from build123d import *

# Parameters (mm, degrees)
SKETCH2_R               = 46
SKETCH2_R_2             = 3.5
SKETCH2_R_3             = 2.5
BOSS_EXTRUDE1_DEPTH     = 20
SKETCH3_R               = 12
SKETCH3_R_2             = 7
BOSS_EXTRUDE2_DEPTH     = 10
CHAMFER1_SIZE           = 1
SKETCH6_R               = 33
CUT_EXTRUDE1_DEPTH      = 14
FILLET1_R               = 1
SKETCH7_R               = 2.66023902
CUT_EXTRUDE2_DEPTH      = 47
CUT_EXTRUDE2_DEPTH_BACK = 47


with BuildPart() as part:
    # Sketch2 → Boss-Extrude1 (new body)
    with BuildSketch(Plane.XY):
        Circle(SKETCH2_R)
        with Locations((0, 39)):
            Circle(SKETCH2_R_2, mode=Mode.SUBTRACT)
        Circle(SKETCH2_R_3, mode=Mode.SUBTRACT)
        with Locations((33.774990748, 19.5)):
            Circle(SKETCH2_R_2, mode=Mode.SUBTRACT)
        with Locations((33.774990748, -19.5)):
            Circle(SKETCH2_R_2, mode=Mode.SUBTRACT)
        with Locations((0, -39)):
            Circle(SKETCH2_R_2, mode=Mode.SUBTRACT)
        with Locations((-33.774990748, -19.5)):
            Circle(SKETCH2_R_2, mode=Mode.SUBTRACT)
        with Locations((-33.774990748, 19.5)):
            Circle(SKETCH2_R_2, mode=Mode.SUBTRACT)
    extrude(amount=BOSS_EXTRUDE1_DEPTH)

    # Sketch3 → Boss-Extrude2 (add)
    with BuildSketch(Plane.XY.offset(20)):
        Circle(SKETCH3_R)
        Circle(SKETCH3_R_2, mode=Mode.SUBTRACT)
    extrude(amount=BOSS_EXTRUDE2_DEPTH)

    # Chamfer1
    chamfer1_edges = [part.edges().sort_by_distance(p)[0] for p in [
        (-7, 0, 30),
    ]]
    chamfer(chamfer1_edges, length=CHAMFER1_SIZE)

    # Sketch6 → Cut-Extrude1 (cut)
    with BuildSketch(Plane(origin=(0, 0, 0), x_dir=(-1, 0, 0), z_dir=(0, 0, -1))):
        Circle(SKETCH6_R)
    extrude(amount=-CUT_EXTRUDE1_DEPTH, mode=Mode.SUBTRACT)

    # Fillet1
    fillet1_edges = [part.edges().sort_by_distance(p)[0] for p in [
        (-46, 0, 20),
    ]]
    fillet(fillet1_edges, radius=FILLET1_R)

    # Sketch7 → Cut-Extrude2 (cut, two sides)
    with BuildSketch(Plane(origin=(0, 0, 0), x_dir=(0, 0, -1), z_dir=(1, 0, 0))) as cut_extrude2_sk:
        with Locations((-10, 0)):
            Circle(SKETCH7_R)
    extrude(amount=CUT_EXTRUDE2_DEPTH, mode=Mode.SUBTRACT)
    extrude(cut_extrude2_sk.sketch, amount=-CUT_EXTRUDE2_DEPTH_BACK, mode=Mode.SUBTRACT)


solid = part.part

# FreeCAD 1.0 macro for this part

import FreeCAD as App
import Part
import Sketcher
from FreeCAD import Vector


def edges_at(feature, points):
    """Names of the edges that pass closest to the given points."""
    edges = feature.Shape.Edges
    near = lambda p: min(range(len(edges)), key=lambda i: edges[i].distToShape(Part.Vertex(*p))[0])
    return sorted({f"Edge{near(p) + 1}" for p in points})

doc = App.newDocument("Part")
body = doc.addObject("PartDesign::Body", "Body")

# Sketch on XY plane
sketch1 = body.newObject("Sketcher::SketchObject", "Sketch")
sketch1.AttachmentSupport = (doc.getObject("XY_Plane"), [""])
sketch1.MapMode = "FlatFace"
sketch1.addGeometry(Part.Circle(Vector(0, 0, 0), Vector(0, 0, 1), 46), False)
sketch1.addGeometry(Part.Circle(Vector(-33.774991, -19.5, 0), Vector(0, 0, 1), 3.5), False)
sketch1.addGeometry(Part.Circle(Vector(0, -39, 0), Vector(0, 0, 1), 3.5), False)
sketch1.addGeometry(Part.Circle(Vector(33.774991, -19.5, 0), Vector(0, 0, 1), 3.5), False)
sketch1.addGeometry(Part.Circle(Vector(-33.774991, 19.5, 0), Vector(0, 0, 1), 3.5), False)
sketch1.addGeometry(Part.Circle(Vector(0, 0, 0), Vector(0, 0, 1), 2.5), False)
sketch1.addGeometry(Part.Circle(Vector(33.774991, 19.5, 0), Vector(0, 0, 1), 3.5), False)
sketch1.addGeometry(Part.Circle(Vector(0, 39, 0), Vector(0, 0, 1), 3.5), False)
sketch1.addConstraint(Sketcher.Constraint("Coincident", 0, 3, -1, 1))
sketch1.addConstraint(Sketcher.Constraint("Coincident", 5, 3, -1, 1))
sketch1.addConstraint(Sketcher.Constraint("Equal", 1, 2))
sketch1.addConstraint(Sketcher.Constraint("Equal", 2, 3))
sketch1.addConstraint(Sketcher.Constraint("Equal", 3, 4))
sketch1.addConstraint(Sketcher.Constraint("Equal", 4, 6))
sketch1.addConstraint(Sketcher.Constraint("Equal", 6, 7))
sketch1.addConstraint(Sketcher.Constraint("Symmetric", 3, 3, 4, 3, -1, 1))
sketch1.addConstraint(Sketcher.Constraint("Symmetric", 1, 3, 6, 3, -1, 1))
sketch1.addConstraint(Sketcher.Constraint("Symmetric", 2, 3, 7, 3, -1, 1))
sketch1.addConstraint(Sketcher.Constraint("Symmetric", 1, 3, 3, 3, -2))
sketch1.addConstraint(Sketcher.Constraint("PointOnObject", 2, 3, -2))
sketch1.addConstraint(Sketcher.Constraint("Diameter", 0, 92.0))
sketch1.addConstraint(Sketcher.Constraint("Diameter", 1, 7.0))
sketch1.addConstraint(Sketcher.Constraint("Diameter", 5, 5.0))
sketch1.addConstraint(Sketcher.Constraint("DistanceY", 2, 3, -1, 1, 39.0))
sketch1.addConstraint(Sketcher.Constraint("DistanceY", 1, 3, 4, 3, 39.0))
sketch1.addConstraint(Sketcher.Constraint("DistanceX", 1, 3, -1, 1, 33.774991))
pad1 = body.newObject("PartDesign::Pad", "Pad")
pad1.Profile = sketch1
pad1.Length = 20

# Sketch on XY plane
sketch2 = body.newObject("Sketcher::SketchObject", "Sketch001")
sketch2.AttachmentSupport = (doc.getObject("XY_Plane"), [""])
sketch2.MapMode = "FlatFace"
sketch2.AttachmentOffset = App.Placement(Vector(0, 0, 20), App.Rotation())
sketch2.addGeometry(Part.Circle(Vector(0, 0, 0), Vector(0, 0, 1), 12), False)
sketch2.addGeometry(Part.Circle(Vector(0, 0, 0), Vector(0, 0, 1), 7), False)
sketch2.addConstraint(Sketcher.Constraint("Coincident", 0, 3, -1, 1))
sketch2.addConstraint(Sketcher.Constraint("Coincident", 1, 3, -1, 1))
sketch2.addConstraint(Sketcher.Constraint("Diameter", 0, 24.0))
sketch2.addConstraint(Sketcher.Constraint("Diameter", 1, 14.0))
pad2 = body.newObject("PartDesign::Pad", "Pad001")
pad2.Profile = sketch2
pad2.Length = 10
doc.recompute()

chamfer = body.newObject("PartDesign::Chamfer", "Chamfer")
chamfer.Base = (pad2, edges_at(pad2, [(-7, 0, 30)]))
chamfer.Size = 1

# Sketch on XY plane
sketch3 = body.newObject("Sketcher::SketchObject", "Sketch002")
sketch3.AttachmentSupport = (doc.getObject("XY_Plane"), [""])
sketch3.MapMode = "FlatFace"
sketch3.addGeometry(Part.Circle(Vector(0, 0, 0), Vector(0, 0, 1), 33), False)
sketch3.addConstraint(Sketcher.Constraint("Coincident", 0, 3, -1, 1))
sketch3.addConstraint(Sketcher.Constraint("Diameter", 0, 66.0))
pocket1 = body.newObject("PartDesign::Pocket", "Pocket")
pocket1.Profile = sketch3
pocket1.Length = 14
pocket1.Reversed = True
doc.recompute()

fillet = body.newObject("PartDesign::Fillet", "Fillet")
fillet.Base = (pocket1, edges_at(pocket1, [(-46, 0, 20)]))
fillet.Radius = 1

# Sketch on YZ plane
sketch4 = body.newObject("Sketcher::SketchObject", "Sketch003")
sketch4.AttachmentSupport = (doc.getObject("YZ_Plane"), [""])
sketch4.MapMode = "FlatFace"
sketch4.addGeometry(Part.Circle(Vector(0, 10, 0), Vector(0, 0, 1), 2.660239), False)
sketch4.addConstraint(Sketcher.Constraint("PointOnObject", 0, 3, -2))
sketch4.addConstraint(Sketcher.Constraint("DistanceY", -1, 1, 0, 3, 10.0))
sketch4.addConstraint(Sketcher.Constraint("Diameter", 0, 5.320478))
pocket2 = body.newObject("PartDesign::Pocket", "Pocket001")
pocket2.Profile = sketch4
pocket2.Type = "ThroughAll"
pocket2.Midplane = True

doc.recompute()
